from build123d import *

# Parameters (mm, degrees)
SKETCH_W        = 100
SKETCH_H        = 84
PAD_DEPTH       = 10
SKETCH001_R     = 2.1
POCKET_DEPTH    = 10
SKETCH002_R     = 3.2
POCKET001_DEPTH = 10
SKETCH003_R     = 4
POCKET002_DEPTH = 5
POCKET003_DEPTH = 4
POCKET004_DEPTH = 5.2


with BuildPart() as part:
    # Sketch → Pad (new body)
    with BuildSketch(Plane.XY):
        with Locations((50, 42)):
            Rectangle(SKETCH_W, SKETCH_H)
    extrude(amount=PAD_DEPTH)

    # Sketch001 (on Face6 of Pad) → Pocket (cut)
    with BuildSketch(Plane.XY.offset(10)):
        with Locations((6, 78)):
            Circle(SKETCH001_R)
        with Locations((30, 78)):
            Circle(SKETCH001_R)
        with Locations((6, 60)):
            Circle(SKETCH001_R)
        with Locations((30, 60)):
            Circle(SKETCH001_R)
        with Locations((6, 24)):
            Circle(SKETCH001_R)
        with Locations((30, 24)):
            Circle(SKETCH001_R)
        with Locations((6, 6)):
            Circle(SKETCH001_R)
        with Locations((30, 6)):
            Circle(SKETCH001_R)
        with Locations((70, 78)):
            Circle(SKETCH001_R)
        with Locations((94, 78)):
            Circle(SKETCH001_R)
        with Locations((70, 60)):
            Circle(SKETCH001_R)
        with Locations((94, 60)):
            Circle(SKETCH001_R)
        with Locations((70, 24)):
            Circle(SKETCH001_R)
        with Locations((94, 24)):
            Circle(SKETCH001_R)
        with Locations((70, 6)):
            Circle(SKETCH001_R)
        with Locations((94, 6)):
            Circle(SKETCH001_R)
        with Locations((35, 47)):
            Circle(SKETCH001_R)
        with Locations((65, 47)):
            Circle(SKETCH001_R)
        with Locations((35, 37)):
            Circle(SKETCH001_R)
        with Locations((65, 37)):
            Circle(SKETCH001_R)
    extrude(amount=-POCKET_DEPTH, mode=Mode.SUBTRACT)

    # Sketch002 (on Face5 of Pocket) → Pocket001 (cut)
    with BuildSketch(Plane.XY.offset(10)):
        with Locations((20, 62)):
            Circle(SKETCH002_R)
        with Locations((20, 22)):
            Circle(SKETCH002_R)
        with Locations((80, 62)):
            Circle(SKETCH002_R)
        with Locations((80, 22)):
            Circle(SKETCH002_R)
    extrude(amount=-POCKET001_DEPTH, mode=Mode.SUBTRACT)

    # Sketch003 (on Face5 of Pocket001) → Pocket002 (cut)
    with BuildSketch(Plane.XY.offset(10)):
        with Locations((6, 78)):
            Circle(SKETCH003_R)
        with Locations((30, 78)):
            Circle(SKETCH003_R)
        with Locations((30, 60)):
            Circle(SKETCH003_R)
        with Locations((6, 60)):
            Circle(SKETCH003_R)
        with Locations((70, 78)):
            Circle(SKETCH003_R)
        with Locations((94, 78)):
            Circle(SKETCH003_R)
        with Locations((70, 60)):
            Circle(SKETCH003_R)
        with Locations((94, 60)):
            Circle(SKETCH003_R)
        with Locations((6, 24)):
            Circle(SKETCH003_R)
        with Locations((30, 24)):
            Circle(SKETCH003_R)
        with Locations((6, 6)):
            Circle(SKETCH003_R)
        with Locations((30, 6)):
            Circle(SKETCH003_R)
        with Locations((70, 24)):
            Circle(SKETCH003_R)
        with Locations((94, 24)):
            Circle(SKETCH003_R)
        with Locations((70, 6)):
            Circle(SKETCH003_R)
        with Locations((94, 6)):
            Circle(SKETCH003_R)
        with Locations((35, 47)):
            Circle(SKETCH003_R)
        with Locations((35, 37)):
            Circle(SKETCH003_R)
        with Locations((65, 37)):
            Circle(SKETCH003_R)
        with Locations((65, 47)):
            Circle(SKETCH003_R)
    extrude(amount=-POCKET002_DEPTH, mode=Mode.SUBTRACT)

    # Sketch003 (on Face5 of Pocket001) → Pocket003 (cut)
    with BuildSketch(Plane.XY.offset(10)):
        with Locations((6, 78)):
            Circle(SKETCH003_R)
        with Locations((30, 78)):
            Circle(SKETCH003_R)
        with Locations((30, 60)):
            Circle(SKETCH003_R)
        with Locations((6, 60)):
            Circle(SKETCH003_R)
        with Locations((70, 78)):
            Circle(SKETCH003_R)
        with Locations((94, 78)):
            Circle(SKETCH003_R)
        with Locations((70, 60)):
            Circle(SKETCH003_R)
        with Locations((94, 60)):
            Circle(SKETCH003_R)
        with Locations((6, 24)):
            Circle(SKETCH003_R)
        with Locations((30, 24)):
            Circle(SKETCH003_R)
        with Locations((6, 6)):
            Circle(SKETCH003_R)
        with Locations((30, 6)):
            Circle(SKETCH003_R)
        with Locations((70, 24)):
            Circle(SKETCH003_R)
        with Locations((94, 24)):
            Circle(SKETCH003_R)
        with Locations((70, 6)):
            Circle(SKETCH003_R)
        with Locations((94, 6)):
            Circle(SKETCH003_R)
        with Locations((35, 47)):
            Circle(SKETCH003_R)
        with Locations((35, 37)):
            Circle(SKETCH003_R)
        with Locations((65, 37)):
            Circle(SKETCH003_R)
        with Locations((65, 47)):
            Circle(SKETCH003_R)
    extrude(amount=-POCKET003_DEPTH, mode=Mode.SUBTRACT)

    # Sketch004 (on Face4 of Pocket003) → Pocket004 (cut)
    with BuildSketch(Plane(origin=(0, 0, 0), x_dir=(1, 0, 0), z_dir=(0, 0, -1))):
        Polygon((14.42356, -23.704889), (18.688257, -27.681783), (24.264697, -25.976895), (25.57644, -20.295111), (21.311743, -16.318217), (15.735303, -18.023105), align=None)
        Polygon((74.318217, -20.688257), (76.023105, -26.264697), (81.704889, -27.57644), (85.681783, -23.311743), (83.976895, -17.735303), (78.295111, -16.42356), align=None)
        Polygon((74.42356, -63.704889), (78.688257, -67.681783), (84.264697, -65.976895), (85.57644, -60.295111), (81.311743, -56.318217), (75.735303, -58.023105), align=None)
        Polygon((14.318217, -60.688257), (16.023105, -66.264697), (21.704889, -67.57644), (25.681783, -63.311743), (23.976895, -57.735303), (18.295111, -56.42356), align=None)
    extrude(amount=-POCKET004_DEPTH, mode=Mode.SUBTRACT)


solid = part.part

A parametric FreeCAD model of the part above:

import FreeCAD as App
import Part
import Sketcher

V = App.Vector
Q = App.Units.Quantity


def add_polygon(sketch, points):
    """Adds a closed chain of lines whose ends are joined by coincident constraints."""
    first, n = sketch.GeometryCount, len(points)
    for a, b in zip(points, points[1:] + points[:1]):
        sketch.addGeometry(Part.LineSegment(App.Vector(*a, 0), App.Vector(*b, 0)), False)
    for i in range(n):
        sketch.addConstraint(Sketcher.Constraint("Coincident", first + i, 2, first + (i + 1) % n, 1))

doc = App.newDocument("Part")
params = doc.addObject("Spreadsheet::Sheet", "Params")
for row, (alias, value) in enumerate([
    ("sketch1_width", "100 mm"),
    ("sketch1_height", "84 mm"),
    ("pad1_length", "10 mm"),
    ("sketch2_diameter", "4.2 mm"),
    ("pocket1_length", "10 mm"),
    ("sketch3_diameter", "6.4 mm"),
    ("pocket2_length", "10 mm"),
    ("sketch4_diameter", "8 mm"),
    ("pocket3_length", "5 mm"),
    ("sketch5_diameter", "8 mm"),
    ("pocket4_length", "4 mm"),
    ("pocket5_length", "5.2 mm"),
], start=1):
    params.set(f"A{row}", alias)
    params.set(f"B{row}", "=" + value)
    params.setAlias(f"B{row}", alias)

body = doc.addObject("PartDesign::Body", "Body")

# Sketch on XY plane
sketch1 = body.newObject("Sketcher::SketchObject", "Sketch")
sketch1.AttachmentSupport = (doc.getObject("XY_Plane"), [""])
sketch1.MapMode = "FlatFace"
add_polygon(sketch1, [(0, 84), (0, 0), (100, 0), (100, 84)])  # lines 0-3
sketch1.addConstraint([
    Sketcher.Constraint("Vertical", 0),
    Sketcher.Constraint("Horizontal", 1),
    Sketcher.Constraint("Vertical", 2),
    Sketcher.Constraint("Horizontal", 3),
    Sketcher.Constraint("Coincident", 0, 2, -1, 1),
    Sketcher.Constraint("DistanceX", 1, 1, 1, 2, Q("100 mm")),
    Sketcher.Constraint("DistanceY", 0, 2, 0, 1, Q("84 mm")),
])
sketch1.setExpression("Constraints[9]", "Params.sketch1_width")
sketch1.setExpression("Constraints[10]", "Params.sketch1_height")
pad1 = body.newObject("PartDesign::Pad", "Pad")
pad1.Profile = sketch1
pad1.setExpression("Length", "Params.pad1_length")

# Sketch on XY plane
sketch2 = body.newObject("Sketcher::SketchObject", "Sketch001")
sketch2.AttachmentSupport = (doc.getObject("XY_Plane"), [""])
sketch2.MapMode = "FlatFace"
sketch2.AttachmentOffset = App.Placement(V(0, 0, 10), App.Rotation())
sketch2.addGeometry([
    Part.Circle(V(6, 78, 0), V(0, 0, 1), 2.1),  # 0
    Part.Circle(V(30, 78, 0), V(0, 0, 1), 2.1),  # 1
    Part.Circle(V(6, 60, 0), V(0, 0, 1), 2.1),  # 2
    Part.Circle(V(30, 60, 0), V(0, 0, 1), 2.1),  # 3
    Part.Circle(V(6, 24, 0), V(0, 0, 1), 2.1),  # 4
    Part.Circle(V(30, 24, 0), V(0, 0, 1), 2.1),  # 5
    Part.Circle(V(6, 6, 0), V(0, 0, 1), 2.1),  # 6
    Part.Circle(V(30, 6, 0), V(0, 0, 1), 2.1),  # 7
    Part.Circle(V(70, 78, 0), V(0, 0, 1), 2.1),  # 8
    Part.Circle(V(94, 78, 0), V(0, 0, 1), 2.1),  # 9
    Part.Circle(V(70, 60, 0), V(0, 0, 1), 2.1),  # 10
    Part.Circle(V(94, 60, 0), V(0, 0, 1), 2.1),  # 11
    Part.Circle(V(70, 24, 0), V(0, 0, 1), 2.1),  # 12
    Part.Circle(V(94, 24, 0), V(0, 0, 1), 2.1),  # 13
    Part.Circle(V(70, 6, 0), V(0, 0, 1), 2.1),  # 14
    Part.Circle(V(94, 6, 0), V(0, 0, 1), 2.1),  # 15
    Part.Circle(V(35, 47, 0), V(0, 0, 1), 2.1),  # 16
    Part.Circle(V(65, 47, 0), V(0, 0, 1), 2.1),  # 17
    Part.Circle(V(35, 37, 0), V(0, 0, 1), 2.1),  # 18
    Part.Circle(V(65, 37, 0), V(0, 0, 1), 2.1),  # 19
], False)
sketch2.addConstraint([
    Sketcher.Constraint("Equal", 0, 1),
    Sketcher.Constraint("Equal", 1, 2),
    Sketcher.Constraint("Equal", 2, 3),
    Sketcher.Constraint("Equal", 3, 4),
    Sketcher.Constraint("Equal", 4, 5),
    Sketcher.Constraint("Equal", 5, 6),
    Sketcher.Constraint("Equal", 6, 7),
    Sketcher.Constraint("Equal", 7, 8),
    Sketcher.Constraint("Equal", 8, 9),
    Sketcher.Constraint("Equal", 9, 10),
    Sketcher.Constraint("Equal", 10, 11),
    Sketcher.Constraint("Equal", 11, 12),
    Sketcher.Constraint("Equal", 12, 13),
    Sketcher.Constraint("Equal", 13, 14),
    Sketcher.Constraint("Equal", 14, 15),
    Sketcher.Constraint("Equal", 15, 16),
    Sketcher.Constraint("Equal", 16, 17),
    Sketcher.Constraint("Equal", 17, 18),
    Sketcher.Constraint("Equal", 18, 19),
    Sketcher.Constraint("Horizontal", 0, 3, 1, 3),
    Sketcher.Constraint("Horizontal", 2, 3, 3, 3),
    Sketcher.Constraint("Horizontal", 4, 3, 5, 3),
    Sketcher.Constraint("Horizontal", 6, 3, 7, 3),
    Sketcher.Constraint("Horizontal", 1, 3, 8, 3),
    Sketcher.Constraint("Horizontal", 8, 3, 9, 3),
    Sketcher.Constraint("Horizontal", 3, 3, 10, 3),
    Sketcher.Constraint("Horizontal", 10, 3, 11, 3),
    Sketcher.Constraint("Horizontal", 5, 3, 12, 3),
    Sketcher.Constraint("Horizontal", 12, 3, 13, 3),
    Sketcher.Constraint("Horizontal", 7, 3, 14, 3),
    Sketcher.Constraint("Horizontal", 14, 3, 15, 3),
    Sketcher.Constraint("Horizontal", 16, 3, 17, 3),
    Sketcher.Constraint("Horizontal", 18, 3, 19, 3),
    Sketcher.Constraint("Vertical", 0, 3, 2, 3),
    Sketcher.Constraint("Vertical", 1, 3, 3, 3),
    Sketcher.Constraint("Vertical", 2, 3, 4, 3),
    Sketcher.Constraint("Vertical", 3, 3, 5, 3),
    Sketcher.Constraint("Vertical", 4, 3, 6, 3),
    Sketcher.Constraint("Vertical", 5, 3, 7, 3),
    Sketcher.Constraint("Vertical", 8, 3, 10, 3),
    Sketcher.Constraint("Vertical", 9, 3, 11, 3),
    Sketcher.Constraint("Vertical", 10, 3, 12, 3),
    Sketcher.Constraint("Vertical", 11, 3, 13, 3),
    Sketcher.Constraint("Vertical", 12, 3, 14, 3),
    Sketcher.Constraint("Vertical", 13, 3, 15, 3),
    Sketcher.Constraint("Vertical", 16, 3, 18, 3),
    Sketcher.Constraint("Vertical", 17, 3, 19, 3),
    Sketcher.Constraint("Diameter", 0, Q("4.2 mm")),
    Sketcher.Constraint("DistanceX", -1, 1, 0, 3, Q("6 mm")),
    Sketcher.Constraint("DistanceY", -1, 1, 0, 3, Q("78 mm")),
    Sketcher.Constraint("DistanceX", -1, 1, 1, 3, Q("30 mm")),
    Sketcher.Constraint("DistanceY", -1, 1, 2, 3, Q("60 mm")),
    Sketcher.Constraint("DistanceY", -1, 1, 4, 3, Q("24 mm")),
    Sketcher.Constraint("DistanceY", -1, 1, 6, 3, Q("6 mm")),
    Sketcher.Constraint("DistanceX", -1, 1, 8, 3, Q("70 mm")),
    Sketcher.Constraint("DistanceX", -1, 1, 9, 3, Q("94 mm")),
    Sketcher.Constraint("DistanceX", -1, 1, 16, 3, Q("35 mm")),
    Sketcher.Constraint("DistanceY", -1, 1, 16, 3, Q("47 mm")),
    Sketcher.Constraint("DistanceX", -1, 1, 17, 3, Q("65 mm")),
    Sketcher.Constraint("DistanceY", -1, 1, 18, 3, Q("37 mm")),
])
sketch2.setExpression("Constraints[47]", "Params.sketch2_diameter")
pocket1 = body.newObject("PartDesign::Pocket", "Pocket")
pocket1.Profile = sketch2
pocket1.setExpression("Length", "Params.pocket1_length")

# Sketch on XY plane
sketch3 = body.newObject("Sketcher::SketchObject", "Sketch002")
sketch3.AttachmentSupport = (doc.getObject("XY_Plane"), [""])
sketch3.MapMode = "FlatFace"
sketch3.AttachmentOffset = App.Placement(V(0, 0, 10), App.Rotation())
sketch3.addGeometry([
    Part.Circle(V(20, 62, 0), V(0, 0, 1), 3.2),
    Part.Circle(V(20, 22, 0), V(0, 0, 1), 3.2),
    Part.Circle(V(80, 62, 0), V(0, 0, 1), 3.2),
    Part.Circle(V(80, 22, 0), V(0, 0, 1), 3.2),
], False)
sketch3.addConstraint([
    Sketcher.Constraint("Equal", 0, 1),
    Sketcher.Constraint("Equal", 1, 2),
    Sketcher.Constraint("Equal", 2, 3),
    Sketcher.Constraint("Horizontal", 0, 3, 2, 3),
    Sketcher.Constraint("Horizontal", 1, 3, 3, 3),
    Sketcher.Constraint("Vertical", 0, 3, 1, 3),
    Sketcher.Constraint("Vertical", 2, 3, 3, 3),
    Sketcher.Constraint("Diameter", 0, Q("6.4 mm")),
    Sketcher.Constraint("DistanceX", -1, 1, 0, 3, Q("20 mm")),
    Sketcher.Constraint("DistanceY", -1, 1, 0, 3, Q("62 mm")),
    Sketcher.Constraint("DistanceY", -1, 1, 1, 3, Q("22 mm")),
    Sketcher.Constraint("DistanceX", -1, 1, 2, 3, Q("80 mm")),
])
sketch3.setExpression("Constraints[7]", "Params.sketch3_diameter")
pocket2 = body.newObject("PartDesign::Pocket", "Pocket001")
pocket2.Profile = sketch3
pocket2.setExpression("Length", "Params.pocket2_length")

# Sketch on XY plane
sketch4 = body.newObject("Sketcher::SketchObject", "Sketch003")
sketch4.AttachmentSupport = (doc.getObject("XY_Plane"), [""])
sketch4.MapMode = "FlatFace"
sketch4.AttachmentOffset = App.Placement(V(0, 0, 10), App.Rotation())
sketch4.addGeometry([
    Part.Circle(V(6, 78, 0), V(0, 0, 1), 4),  # 0
    Part.Circle(V(30, 78, 0), V(0, 0, 1), 4),  # 1
    Part.Circle(V(30, 60, 0), V(0, 0, 1), 4),  # 2
    Part.Circle(V(6, 60, 0), V(0, 0, 1), 4),  # 3
    Part.Circle(V(70, 78, 0), V(0, 0, 1), 4),  # 4
    Part.Circle(V(94, 78, 0), V(0, 0, 1), 4),  # 5
    Part.Circle(V(70, 60, 0), V(0, 0, 1), 4),  # 6
    Part.Circle(V(94, 60, 0), V(0, 0, 1), 4),  # 7
    Part.Circle(V(6, 24, 0), V(0, 0, 1), 4),  # 8
    Part.Circle(V(30, 24, 0), V(0, 0, 1), 4),  # 9
    Part.Circle(V(6, 6, 0), V(0, 0, 1), 4),  # 10
    Part.Circle(V(30, 6, 0), V(0, 0, 1), 4),  # 11
    Part.Circle(V(70, 24, 0), V(0, 0, 1), 4),  # 12
    Part.Circle(V(94, 24, 0), V(0, 0, 1), 4),  # 13
    Part.Circle(V(70, 6, 0), V(0, 0, 1), 4),  # 14
    Part.Circle(V(94, 6, 0), V(0, 0, 1), 4),  # 15
    Part.Circle(V(35, 47, 0), V(0, 0, 1), 4),  # 16
    Part.Circle(V(35, 37, 0), V(0, 0, 1), 4),  # 17
    Part.Circle(V(65, 37, 0), V(0, 0, 1), 4),  # 18
    Part.Circle(V(65, 47, 0), V(0, 0, 1), 4),  # 19
], False)
sketch4.addConstraint([
    Sketcher.Constraint("Equal", 0, 1),
    Sketcher.Constraint("Equal", 1, 2),
    Sketcher.Constraint("Equal", 2, 3),
    Sketcher.Constraint("Equal", 3, 4),
    Sketcher.Constraint("Equal", 4, 5),
    Sketcher.Constraint("Equal", 5, 6),
    Sketcher.Constraint("Equal", 6, 7),
    Sketcher.Constraint("Equal", 7, 8),
    Sketcher.Constraint("Equal", 8, 9),
    Sketcher.Constraint("Equal", 9, 10),
    Sketcher.Constraint("Equal", 10, 11),
    Sketcher.Constraint("Equal", 11, 12),
    Sketcher.Constraint("Equal", 12, 13),
    Sketcher.Constraint("Equal", 13, 14),
    Sketcher.Constraint("Equal", 14, 15),
    Sketcher.Constraint("Equal", 15, 16),
    Sketcher.Constraint("Equal", 16, 17),
    Sketcher.Constraint("Equal", 17, 18),
    Sketcher.Constraint("Equal", 18, 19),
    Sketcher.Constraint("Horizontal", 0, 3, 1, 3),
    Sketcher.Constraint("Horizontal", 2, 3, 3, 3),
    Sketcher.Constraint("Horizontal", 1, 3, 4, 3),
    Sketcher.Constraint("Horizontal", 4, 3, 5, 3),
    Sketcher.Constraint("Horizontal", 3, 3, 6, 3),
    Sketcher.Constraint("Horizontal", 6, 3, 7, 3),
    Sketcher.Constraint("Horizontal", 8, 3, 9, 3),
    Sketcher.Constraint("Horizontal", 10, 3, 11, 3),
    Sketcher.Constraint("Horizontal", 9, 3, 12, 3),
    Sketcher.Constraint("Horizontal", 12, 3, 13, 3),
    Sketcher.Constraint("Horizontal", 11, 3, 14, 3),
    Sketcher.Constraint("Horizontal", 14, 3, 15, 3),
    Sketcher.Constraint("Horizontal", 17, 3, 18, 3),
    Sketcher.Constraint("Horizontal", 16, 3, 19, 3),
    Sketcher.Constraint("Vertical", 1, 3, 2, 3),
    Sketcher.Constraint("Vertical", 0, 3, 3, 3),
    Sketcher.Constraint("Vertical", 4, 3, 6, 3),
    Sketcher.Constraint("Vertical", 5, 3, 7, 3),
    Sketcher.Constraint("Vertical", 3, 3, 8, 3),
    Sketcher.Constraint("Vertical", 2, 3, 9, 3),
    Sketcher.Constraint("Vertical", 8, 3, 10, 3),
    Sketcher.Constraint("Vertical", 9, 3, 11, 3),
    Sketcher.Constraint("Vertical", 6, 3, 12, 3),
    Sketcher.Constraint("Vertical", 7, 3, 13, 3),
    Sketcher.Constraint("Vertical", 12, 3, 14, 3),
    Sketcher.Constraint("Vertical", 13, 3, 15, 3),
    Sketcher.Constraint("Vertical", 16, 3, 17, 3),
    Sketcher.Constraint("Vertical", 18, 3, 19, 3),
    Sketcher.Constraint("Diameter", 0, Q("8 mm")),
    Sketcher.Constraint("DistanceX", -1, 1, 0, 3, Q("6 mm")),
    Sketcher.Constraint("DistanceY", -1, 1, 0, 3, Q("78 mm")),
    Sketcher.Constraint("DistanceX", -1, 1, 1, 3, Q("30 mm")),
    Sketcher.Constraint("DistanceY", -1, 1, 2, 3, Q("60 mm")),
    Sketcher.Constraint("DistanceX", -1, 1, 4, 3, Q("70 mm")),
    Sketcher.Constraint("DistanceX", -1, 1, 5, 3, Q("94 mm")),
    Sketcher.Constraint("DistanceY", -1, 1, 8, 3, Q("24 mm")),
    Sketcher.Constraint("DistanceY", -1, 1, 10, 3, Q("6 mm")),
    Sketcher.Constraint("DistanceX", -1, 1, 16, 3, Q("35 mm")),
    Sketcher.Constraint("DistanceY", -1, 1, 16, 3, Q("47 mm")),
    Sketcher.Constraint("DistanceY", -1, 1, 17, 3, Q("37 mm")),
    Sketcher.Constraint("DistanceX", -1, 1, 18, 3, Q("65 mm")),
])
sketch4.setExpression("Constraints[47]", "Params.sketch4_diameter")
pocket3 = body.newObject("PartDesign::Pocket", "Pocket002")
pocket3.Profile = sketch4
pocket3.setExpression("Length", "Params.pocket3_length")

# Sketch on XY plane
sketch5 = body.newObject("Sketcher::SketchObject", "Sketch004")
sketch5.AttachmentSupport = (doc.getObject("XY_Plane"), [""])
sketch5.MapMode = "FlatFace"
sketch5.AttachmentOffset = App.Placement(V(0, 0, 10), App.Rotation())
sketch5.addGeometry([
    Part.Circle(V(6, 78, 0), V(0, 0, 1), 4),  # 0
    Part.Circle(V(30, 78, 0), V(0, 0, 1), 4),  # 1
    Part.Circle(V(30, 60, 0), V(0, 0, 1), 4),  # 2
    Part.Circle(V(6, 60, 0), V(0, 0, 1), 4),  # 3
    Part.Circle(V(70, 78, 0), V(0, 0, 1), 4),  # 4
    Part.Circle(V(94, 78, 0), V(0, 0, 1), 4),  # 5
    Part.Circle(V(70, 60, 0), V(0, 0, 1), 4),  # 6
    Part.Circle(V(94, 60, 0), V(0, 0, 1), 4),  # 7
    Part.Circle(V(6, 24, 0), V(0, 0, 1), 4),  # 8
    Part.Circle(V(30, 24, 0), V(0, 0, 1), 4),  # 9
    Part.Circle(V(6, 6, 0), V(0, 0, 1), 4),  # 10
    Part.Circle(V(30, 6, 0), V(0, 0, 1), 4),  # 11
    Part.Circle(V(70, 24, 0), V(0, 0, 1), 4),  # 12
    Part.Circle(V(94, 24, 0), V(0, 0, 1), 4),  # 13
    Part.Circle(V(70, 6, 0), V(0, 0, 1), 4),  # 14
    Part.Circle(V(94, 6, 0), V(0, 0, 1), 4),  # 15
    Part.Circle(V(35, 47, 0), V(0, 0, 1), 4),  # 16
    Part.Circle(V(35, 37, 0), V(0, 0, 1), 4),  # 17
    Part.Circle(V(65, 37, 0), V(0, 0, 1), 4),  # 18
    Part.Circle(V(65, 47, 0), V(0, 0, 1), 4),  # 19
], False)
sketch5.addConstraint([
    Sketcher.Constraint("Equal", 0, 1),
    Sketcher.Constraint("Equal", 1, 2),
    Sketcher.Constraint("Equal", 2, 3),
    Sketcher.Constraint("Equal", 3, 4),
    Sketcher.Constraint("Equal", 4, 5),
    Sketcher.Constraint("Equal", 5, 6),
    Sketcher.Constraint("Equal", 6, 7),
    Sketcher.Constraint("Equal", 7, 8),
    Sketcher.Constraint("Equal", 8, 9),
    Sketcher.Constraint("Equal", 9, 10),
    Sketcher.Constraint("Equal", 10, 11),
    Sketcher.Constraint("Equal", 11, 12),
    Sketcher.Constraint("Equal", 12, 13),
    Sketcher.Constraint("Equal", 13, 14),
    Sketcher.Constraint("Equal", 14, 15),
    Sketcher.Constraint("Equal", 15, 16),
    Sketcher.Constraint("Equal", 16, 17),
    Sketcher.Constraint("Equal", 17, 18),
    Sketcher.Constraint("Equal", 18, 19),
    Sketcher.Constraint("Horizontal", 0, 3, 1, 3),
    Sketcher.Constraint("Horizontal", 2, 3, 3, 3),
    Sketcher.Constraint("Horizontal", 1, 3, 4, 3),
    Sketcher.Constraint("Horizontal", 4, 3, 5, 3),
    Sketcher.Constraint("Horizontal", 3, 3, 6, 3),
    Sketcher.Constraint("Horizontal", 6, 3, 7, 3),
    Sketcher.Constraint("Horizontal", 8, 3, 9, 3),
    Sketcher.Constraint("Horizontal", 10, 3, 11, 3),
    Sketcher.Constraint("Horizontal", 9, 3, 12, 3),
    Sketcher.Constraint("Horizontal", 12, 3, 13, 3),
    Sketcher.Constraint("Horizontal", 11, 3, 14, 3),
    Sketcher.Constraint("Horizontal", 14, 3, 15, 3),
    Sketcher.Constraint("Horizontal", 17, 3, 18, 3),
    Sketcher.Constraint("Horizontal", 16, 3, 19, 3),
    Sketcher.Constraint("Vertical", 1, 3, 2, 3),
    Sketcher.Constraint("Vertical", 0, 3, 3, 3),
    Sketcher.Constraint("Vertical", 4, 3, 6, 3),
    Sketcher.Constraint("Vertical", 5, 3, 7, 3),
    Sketcher.Constraint("Vertical", 3, 3, 8, 3),
    Sketcher.Constraint("Vertical", 2, 3, 9, 3),
    Sketcher.Constraint("Vertical", 8, 3, 10, 3),
    Sketcher.Constraint("Vertical", 9, 3, 11, 3),
    Sketcher.Constraint("Vertical", 6, 3, 12, 3),
    Sketcher.Constraint("Vertical", 7, 3, 13, 3),
    Sketcher.Constraint("Vertical", 12, 3, 14, 3),
    Sketcher.Constraint("Vertical", 13, 3, 15, 3),
    Sketcher.Constraint("Vertical", 16, 3, 17, 3),
    Sketcher.Constraint("Vertical", 18, 3, 19, 3),
    Sketcher.Constraint("Diameter", 0, Q("8 mm")),
    Sketcher.Constraint("DistanceX", -1, 1, 0, 3, Q("6 mm")),
    Sketcher.Constraint("DistanceY", -1, 1, 0, 3, Q("78 mm")),
    Sketcher.Constraint("DistanceX", -1, 1, 1, 3, Q("30 mm")),
    Sketcher.Constraint("DistanceY", -1, 1, 2, 3, Q("60 mm")),
    Sketcher.Constraint("DistanceX", -1, 1, 4, 3, Q("70 mm")),
    Sketcher.Constraint("DistanceX", -1, 1, 5, 3, Q("94 mm")),
    Sketcher.Constraint("DistanceY", -1, 1, 8, 3, Q("24 mm")),
    Sketcher.Constraint("DistanceY", -1, 1, 10, 3, Q("6 mm")),
    Sketcher.Constraint("DistanceX", -1, 1, 16, 3, Q("35 mm")),
    Sketcher.Constraint("DistanceY", -1, 1, 16, 3, Q("47 mm")),
    Sketcher.Constraint("DistanceY", -1, 1, 17, 3, Q("37 mm")),
    Sketcher.Constraint("DistanceX", -1, 1, 18, 3, Q("65 mm")),
])
sketch5.setExpression("Constraints[47]", "Params.sketch5_diameter")
pocket4 = body.newObject("PartDesign::Pocket", "Pocket003")
pocket4.Profile = sketch5
pocket4.setExpression("Length", "Params.pocket4_length")

# Sketch on XY plane
sketch6 = body.newObject("Sketcher::SketchObject", "Sketch005")
sketch6.AttachmentSupport = (doc.getObject("XY_Plane"), [""])
sketch6.MapMode = "FlatFace"
add_polygon(sketch6, [(14, 24), (19, 28), (24, 26), (26, 20), (21, 16), (16, 18)])  # lines 0-5
add_polygon(sketch6, [(74, 21), (76, 26), (82, 28), (86, 23), (84, 18), (78, 16)])  # lines 6-11
add_polygon(sketch6, [(74, 64), (79, 68), (84, 66), (86, 60), (81, 56), (76, 58)])  # lines 12-17
add_polygon(sketch6, [(14, 61), (16, 66), (22, 68), (26, 63), (24, 58), (18, 56)])  # lines 18-23
sketch6.addConstraint([
    Sketcher.Constraint("Parallel", 0, 3),
    Sketcher.Constraint("Parallel", 1, 4),
    Sketcher.Constraint("Parallel", 2, 5),
    Sketcher.Constraint("Perpendicular", 4, 6),
    Sketcher.Constraint("Perpendicular", 5, 7),
    Sketcher.Constraint("Perpendicular", 3, 8),
    Sketcher.Constraint("Parallel", 6, 9),
    Sketcher.Constraint("Parallel", 7, 10),
    Sketcher.Constraint("Parallel", 8, 11),
    Sketcher.Constraint("Perpendicular", 11, 12),
    Sketcher.Constraint("Perpendicular", 9, 13),
    Sketcher.Constraint("Perpendicular", 10, 14),
    Sketcher.Constraint("Parallel", 12, 15),
    Sketcher.Constraint("Parallel", 13, 16),
    Sketcher.Constraint("Parallel", 14, 17),
    Sketcher.Constraint("Perpendicular", 16, 18),
    Sketcher.Constraint("Perpendicular", 17, 19),
    Sketcher.Constraint("Perpendicular", 15, 20),
    Sketcher.Constraint("Parallel", 18, 21),
    Sketcher.Constraint("Parallel", 19, 22),
    Sketcher.Constraint("Parallel", 20, 23),
    Sketcher.Constraint("Equal", 0, 1),
    Sketcher.Constraint("Equal", 1, 2),
    Sketcher.Constraint("Equal", 2, 3),
    Sketcher.Constraint("Equal", 5, 6),
    Sketcher.Constraint("Equal", 6, 7),
    Sketcher.Constraint("Equal", 7, 8),
    Sketcher.Constraint("Equal", 8, 9),
    Sketcher.Constraint("Equal", 11, 12),
    Sketcher.Constraint("Equal", 12, 13),
    Sketcher.Constraint("Equal", 13, 14),
    Sketcher.Constraint("Equal", 14, 15),
    Sketcher.Constraint("Equal", 17, 18),
    Sketcher.Constraint("Equal", 18, 19),
    Sketcher.Constraint("Equal", 19, 20),
    Sketcher.Constraint("Equal", 20, 21),
    Sketcher.Constraint("Angle", 0, Q("42.999998 deg")),
    Sketcher.Constraint("Angle", 1, Q("-16.999992 deg")),
    Sketcher.Constraint("Angle", 2, Q("-77.000002 deg")),
    Sketcher.Constraint("Distance", 2, Q("5.831238 mm")),
    Sketcher.Constraint("DistanceX", -1, 1, 2, 2, Q("25.57644 mm")),
    Sketcher.Constraint("DistanceY", -1, 1, 2, 2, Q("20.295111 mm")),
    Sketcher.Constraint("DistanceX", -1, 1, 7, 2, Q("81.704889 mm")),
    Sketcher.Constraint("DistanceY", -1, 1, 7, 2, Q("27.57644 mm")),
    Sketcher.Constraint("DistanceX", -1, 1, 14, 2, Q("85.57644 mm")),
    Sketcher.Constraint("DistanceY", -1, 1, 14, 2, Q("60.295111 mm")),
    Sketcher.Constraint("DistanceX", -1, 1, 19, 2, Q("21.704889 mm")),
    Sketcher.Constraint("DistanceY", -1, 1, 19, 2, Q("67.57644 mm")),
])
pocket5 = body.newObject("PartDesign::Pocket", "Pocket004")
pocket5.Profile = sketch6
pocket5.setExpression("Length", "Params.pocket5_length")
pocket5.Reversed = True

doc.recompute()
